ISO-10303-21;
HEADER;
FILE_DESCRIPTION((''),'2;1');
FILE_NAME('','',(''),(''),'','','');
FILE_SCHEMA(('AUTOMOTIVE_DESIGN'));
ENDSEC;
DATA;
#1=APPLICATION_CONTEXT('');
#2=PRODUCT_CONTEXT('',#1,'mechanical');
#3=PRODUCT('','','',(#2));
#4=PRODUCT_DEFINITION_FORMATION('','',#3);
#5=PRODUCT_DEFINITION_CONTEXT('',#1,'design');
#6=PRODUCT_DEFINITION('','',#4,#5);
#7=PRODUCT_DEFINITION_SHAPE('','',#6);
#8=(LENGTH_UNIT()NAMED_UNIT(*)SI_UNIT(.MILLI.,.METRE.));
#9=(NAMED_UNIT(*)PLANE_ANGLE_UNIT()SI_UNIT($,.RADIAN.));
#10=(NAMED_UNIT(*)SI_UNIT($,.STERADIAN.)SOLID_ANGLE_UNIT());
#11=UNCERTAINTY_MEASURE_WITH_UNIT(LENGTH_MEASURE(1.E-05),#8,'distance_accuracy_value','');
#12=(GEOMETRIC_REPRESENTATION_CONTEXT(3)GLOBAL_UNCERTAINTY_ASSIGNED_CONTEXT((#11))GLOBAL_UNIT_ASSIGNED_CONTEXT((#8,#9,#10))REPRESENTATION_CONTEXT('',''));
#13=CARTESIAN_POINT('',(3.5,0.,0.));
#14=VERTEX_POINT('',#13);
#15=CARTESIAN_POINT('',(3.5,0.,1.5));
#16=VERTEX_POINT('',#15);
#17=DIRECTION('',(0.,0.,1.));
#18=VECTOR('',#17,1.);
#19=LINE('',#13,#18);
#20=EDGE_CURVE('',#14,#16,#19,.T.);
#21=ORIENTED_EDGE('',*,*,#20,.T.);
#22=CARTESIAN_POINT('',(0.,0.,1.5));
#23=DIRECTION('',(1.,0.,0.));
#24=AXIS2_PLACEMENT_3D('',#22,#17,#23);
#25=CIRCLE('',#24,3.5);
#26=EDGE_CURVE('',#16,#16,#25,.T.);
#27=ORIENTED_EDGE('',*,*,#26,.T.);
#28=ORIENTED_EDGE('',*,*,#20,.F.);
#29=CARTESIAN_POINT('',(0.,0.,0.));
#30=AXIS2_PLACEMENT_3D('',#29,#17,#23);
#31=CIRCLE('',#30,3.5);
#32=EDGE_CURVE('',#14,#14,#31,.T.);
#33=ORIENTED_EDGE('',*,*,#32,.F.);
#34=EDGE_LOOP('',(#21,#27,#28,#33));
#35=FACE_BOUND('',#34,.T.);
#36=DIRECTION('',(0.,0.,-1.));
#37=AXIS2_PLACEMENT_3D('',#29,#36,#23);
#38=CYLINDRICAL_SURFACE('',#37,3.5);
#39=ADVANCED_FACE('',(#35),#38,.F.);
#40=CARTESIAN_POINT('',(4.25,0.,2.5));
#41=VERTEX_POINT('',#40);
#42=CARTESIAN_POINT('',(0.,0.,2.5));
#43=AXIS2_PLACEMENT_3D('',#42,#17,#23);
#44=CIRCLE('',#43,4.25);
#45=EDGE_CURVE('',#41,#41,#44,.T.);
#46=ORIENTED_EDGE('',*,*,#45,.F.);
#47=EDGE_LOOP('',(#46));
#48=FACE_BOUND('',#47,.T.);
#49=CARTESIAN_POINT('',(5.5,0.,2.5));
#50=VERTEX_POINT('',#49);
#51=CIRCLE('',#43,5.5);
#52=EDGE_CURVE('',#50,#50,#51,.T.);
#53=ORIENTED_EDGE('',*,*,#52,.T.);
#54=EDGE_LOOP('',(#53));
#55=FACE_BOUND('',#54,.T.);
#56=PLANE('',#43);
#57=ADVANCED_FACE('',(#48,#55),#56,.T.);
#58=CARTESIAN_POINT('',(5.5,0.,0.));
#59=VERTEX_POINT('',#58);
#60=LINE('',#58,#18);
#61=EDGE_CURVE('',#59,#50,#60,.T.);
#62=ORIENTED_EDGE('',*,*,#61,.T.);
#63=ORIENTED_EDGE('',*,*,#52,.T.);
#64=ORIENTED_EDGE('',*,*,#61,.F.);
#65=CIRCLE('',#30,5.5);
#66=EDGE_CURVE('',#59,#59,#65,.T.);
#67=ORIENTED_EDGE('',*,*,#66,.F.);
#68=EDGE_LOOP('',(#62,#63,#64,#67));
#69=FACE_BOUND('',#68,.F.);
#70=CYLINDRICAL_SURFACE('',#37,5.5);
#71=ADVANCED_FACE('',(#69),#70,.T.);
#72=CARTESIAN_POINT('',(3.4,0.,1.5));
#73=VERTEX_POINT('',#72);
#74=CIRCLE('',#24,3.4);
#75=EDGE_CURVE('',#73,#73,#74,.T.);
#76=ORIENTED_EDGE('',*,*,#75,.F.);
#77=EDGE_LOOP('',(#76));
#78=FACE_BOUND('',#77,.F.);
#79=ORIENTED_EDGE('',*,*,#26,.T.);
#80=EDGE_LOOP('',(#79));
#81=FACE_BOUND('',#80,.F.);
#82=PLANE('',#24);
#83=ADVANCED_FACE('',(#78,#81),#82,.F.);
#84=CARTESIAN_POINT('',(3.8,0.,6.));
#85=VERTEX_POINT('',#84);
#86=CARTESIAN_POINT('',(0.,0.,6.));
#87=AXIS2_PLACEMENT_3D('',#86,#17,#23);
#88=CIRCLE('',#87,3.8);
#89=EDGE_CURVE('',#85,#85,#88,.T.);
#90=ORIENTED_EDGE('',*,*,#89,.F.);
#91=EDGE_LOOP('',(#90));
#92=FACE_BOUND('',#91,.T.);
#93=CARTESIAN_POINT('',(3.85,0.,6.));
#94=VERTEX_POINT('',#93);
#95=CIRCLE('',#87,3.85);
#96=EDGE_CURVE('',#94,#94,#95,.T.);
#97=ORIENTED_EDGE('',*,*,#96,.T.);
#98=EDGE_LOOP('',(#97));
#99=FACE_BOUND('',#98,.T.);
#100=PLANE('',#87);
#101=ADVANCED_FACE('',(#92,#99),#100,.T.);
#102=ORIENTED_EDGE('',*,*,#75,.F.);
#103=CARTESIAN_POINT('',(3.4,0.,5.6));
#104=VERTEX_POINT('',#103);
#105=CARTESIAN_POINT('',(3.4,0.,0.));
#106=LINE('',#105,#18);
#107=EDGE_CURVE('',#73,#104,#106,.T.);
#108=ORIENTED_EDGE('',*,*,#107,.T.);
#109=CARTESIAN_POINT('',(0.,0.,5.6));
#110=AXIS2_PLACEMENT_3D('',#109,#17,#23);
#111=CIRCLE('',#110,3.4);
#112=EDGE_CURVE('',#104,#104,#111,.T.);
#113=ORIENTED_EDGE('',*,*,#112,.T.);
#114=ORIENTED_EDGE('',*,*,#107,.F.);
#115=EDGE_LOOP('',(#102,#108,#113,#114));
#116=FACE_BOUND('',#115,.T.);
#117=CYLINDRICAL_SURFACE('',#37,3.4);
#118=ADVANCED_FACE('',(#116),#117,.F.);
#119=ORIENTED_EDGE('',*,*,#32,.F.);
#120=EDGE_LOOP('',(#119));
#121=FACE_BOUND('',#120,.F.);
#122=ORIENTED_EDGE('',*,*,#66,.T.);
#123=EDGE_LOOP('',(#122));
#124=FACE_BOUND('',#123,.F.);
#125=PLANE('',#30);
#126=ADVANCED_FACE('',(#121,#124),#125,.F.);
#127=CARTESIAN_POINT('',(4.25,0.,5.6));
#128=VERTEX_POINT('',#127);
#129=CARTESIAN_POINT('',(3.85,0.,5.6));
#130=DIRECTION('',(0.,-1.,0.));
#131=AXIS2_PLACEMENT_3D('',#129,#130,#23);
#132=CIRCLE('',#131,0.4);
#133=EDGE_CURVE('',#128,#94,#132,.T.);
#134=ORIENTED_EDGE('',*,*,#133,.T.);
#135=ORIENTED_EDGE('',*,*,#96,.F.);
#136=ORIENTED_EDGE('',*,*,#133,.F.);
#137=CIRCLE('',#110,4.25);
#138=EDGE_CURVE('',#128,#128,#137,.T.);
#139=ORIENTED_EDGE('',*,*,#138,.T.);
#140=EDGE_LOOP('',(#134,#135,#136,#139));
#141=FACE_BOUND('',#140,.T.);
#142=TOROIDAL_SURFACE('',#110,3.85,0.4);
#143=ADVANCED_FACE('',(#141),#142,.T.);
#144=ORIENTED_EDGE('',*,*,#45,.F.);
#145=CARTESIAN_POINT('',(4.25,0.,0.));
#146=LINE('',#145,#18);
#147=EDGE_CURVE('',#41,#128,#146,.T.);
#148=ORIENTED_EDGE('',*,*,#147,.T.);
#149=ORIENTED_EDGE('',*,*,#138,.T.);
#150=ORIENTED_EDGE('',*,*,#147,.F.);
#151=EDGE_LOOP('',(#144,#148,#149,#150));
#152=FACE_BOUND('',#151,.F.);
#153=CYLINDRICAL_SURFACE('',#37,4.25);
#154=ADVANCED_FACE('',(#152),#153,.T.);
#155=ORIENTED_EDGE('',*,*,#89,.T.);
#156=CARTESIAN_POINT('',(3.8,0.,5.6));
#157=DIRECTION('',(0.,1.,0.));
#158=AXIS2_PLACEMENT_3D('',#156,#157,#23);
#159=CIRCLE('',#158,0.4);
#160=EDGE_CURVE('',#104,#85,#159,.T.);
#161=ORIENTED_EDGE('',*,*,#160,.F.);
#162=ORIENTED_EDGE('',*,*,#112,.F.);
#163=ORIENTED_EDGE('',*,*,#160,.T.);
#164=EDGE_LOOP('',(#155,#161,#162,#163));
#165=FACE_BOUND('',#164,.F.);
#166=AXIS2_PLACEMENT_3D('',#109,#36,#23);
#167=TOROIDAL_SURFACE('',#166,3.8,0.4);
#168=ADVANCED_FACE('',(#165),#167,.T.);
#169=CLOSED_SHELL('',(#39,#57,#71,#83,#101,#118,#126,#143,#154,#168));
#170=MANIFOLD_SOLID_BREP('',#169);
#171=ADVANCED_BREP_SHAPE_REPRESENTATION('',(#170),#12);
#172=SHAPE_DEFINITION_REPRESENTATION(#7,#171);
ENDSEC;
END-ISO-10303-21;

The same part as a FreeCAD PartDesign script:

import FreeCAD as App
import Part
import Sketcher
Q = App.Units.Quantity


def edges_at(feature, points):
    """Names of the edges that pass closest to the given points."""
    edges = feature.Shape.Edges
    near = lambda p: min(range(len(edges)), key=lambda i: edges[i].distToShape(Part.Vertex(*p))[0])
    return sorted({f"Edge{near(p) + 1}" for p in points})

doc = App.newDocument("Part")
body = doc.addObject("PartDesign::Body", "Body")

# Sketch on XY plane
sketch1 = body.newObject("Sketcher::SketchObject", "Sketch")
sketch1.AttachmentSupport = (doc.getObject("XY_Plane"), [""])
sketch1.MapMode = "FlatFace"
sketch1.addGeometry([
    Part.Circle(App.Vector(0, 0, 0), App.Vector(0, 0, 1), 5.5),
    Part.Circle(App.Vector(0, 0, 0), App.Vector(0, 0, 1), 4.2),
], False)
sketch1.addConstraint([
    Sketcher.Constraint("Coincident", 0, 3, -1, 1),
    Sketcher.Constraint("Coincident", 1, 3, -1, 1),
    Sketcher.Constraint("Diameter", 0, Q("11 mm")),
    Sketcher.Constraint("Diameter", 1, Q("8.5 mm")),
])
pad1 = body.newObject("PartDesign::Pad", "Pad")
pad1.Profile = sketch1
pad1.Length = 2.5

# Sketch on XY plane
sketch2 = body.newObject("Sketcher::SketchObject", "Sketch001")
sketch2.AttachmentSupport = (doc.getObject("XY_Plane"), [""])
sketch2.MapMode = "FlatFace"
sketch2.addGeometry([
    Part.Circle(App.Vector(0, 0, 0), App.Vector(0, 0, 1), 4.2),
    Part.Circle(App.Vector(0, 0, 0), App.Vector(0, 0, 1), 3.4),
], False)
sketch2.addConstraint([
    Sketcher.Constraint("Coincident", 0, 3, -1, 1),
    Sketcher.Constraint("Coincident", 1, 3, -1, 1),
    Sketcher.Constraint("Diameter", 0, Q("8.5 mm")),
    Sketcher.Constraint("Diameter", 1, Q("6.8 mm")),
])
pad2 = body.newObject("PartDesign::Pad", "Pad001")
pad2.Profile = sketch2
pad2.Length = 6
doc.recompute()

fillet = body.newObject("PartDesign::Fillet", "Fillet")
fillet.Base = (pad2, edges_at(pad2, [(-3.4, 0, 6), (-4.25, 0, 6)]))
fillet.Radius = 0.4

# Sketch on XY plane
sketch3 = body.newObject("Sketcher::SketchObject", "Sketch002")
sketch3.AttachmentSupport = (doc.getObject("XY_Plane"), [""])
sketch3.MapMode = "FlatFace"
sketch3.addGeometry([
    Part.Circle(App.Vector(0, 0, 0), App.Vector(0, 0, 1), 3.5),
    Part.Circle(App.Vector(0, 0, 0), App.Vector(0, 0, 1), 3.4),
], False)
sketch3.addConstraint([
    Sketcher.Constraint("Coincident", 0, 3, -1, 1),
    Sketcher.Constraint("Coincident", 1, 3, -1, 1),
    Sketcher.Constraint("Diameter", 0, Q("7 mm")),
    Sketcher.Constraint("Diameter", 1, Q("6.8 mm")),
])
pocket1 = body.newObject("PartDesign::Pocket", "Pocket")
pocket1.Profile = sketch3
pocket1.Length = 1.5
pocket1.Reversed = True

doc.recompute()
